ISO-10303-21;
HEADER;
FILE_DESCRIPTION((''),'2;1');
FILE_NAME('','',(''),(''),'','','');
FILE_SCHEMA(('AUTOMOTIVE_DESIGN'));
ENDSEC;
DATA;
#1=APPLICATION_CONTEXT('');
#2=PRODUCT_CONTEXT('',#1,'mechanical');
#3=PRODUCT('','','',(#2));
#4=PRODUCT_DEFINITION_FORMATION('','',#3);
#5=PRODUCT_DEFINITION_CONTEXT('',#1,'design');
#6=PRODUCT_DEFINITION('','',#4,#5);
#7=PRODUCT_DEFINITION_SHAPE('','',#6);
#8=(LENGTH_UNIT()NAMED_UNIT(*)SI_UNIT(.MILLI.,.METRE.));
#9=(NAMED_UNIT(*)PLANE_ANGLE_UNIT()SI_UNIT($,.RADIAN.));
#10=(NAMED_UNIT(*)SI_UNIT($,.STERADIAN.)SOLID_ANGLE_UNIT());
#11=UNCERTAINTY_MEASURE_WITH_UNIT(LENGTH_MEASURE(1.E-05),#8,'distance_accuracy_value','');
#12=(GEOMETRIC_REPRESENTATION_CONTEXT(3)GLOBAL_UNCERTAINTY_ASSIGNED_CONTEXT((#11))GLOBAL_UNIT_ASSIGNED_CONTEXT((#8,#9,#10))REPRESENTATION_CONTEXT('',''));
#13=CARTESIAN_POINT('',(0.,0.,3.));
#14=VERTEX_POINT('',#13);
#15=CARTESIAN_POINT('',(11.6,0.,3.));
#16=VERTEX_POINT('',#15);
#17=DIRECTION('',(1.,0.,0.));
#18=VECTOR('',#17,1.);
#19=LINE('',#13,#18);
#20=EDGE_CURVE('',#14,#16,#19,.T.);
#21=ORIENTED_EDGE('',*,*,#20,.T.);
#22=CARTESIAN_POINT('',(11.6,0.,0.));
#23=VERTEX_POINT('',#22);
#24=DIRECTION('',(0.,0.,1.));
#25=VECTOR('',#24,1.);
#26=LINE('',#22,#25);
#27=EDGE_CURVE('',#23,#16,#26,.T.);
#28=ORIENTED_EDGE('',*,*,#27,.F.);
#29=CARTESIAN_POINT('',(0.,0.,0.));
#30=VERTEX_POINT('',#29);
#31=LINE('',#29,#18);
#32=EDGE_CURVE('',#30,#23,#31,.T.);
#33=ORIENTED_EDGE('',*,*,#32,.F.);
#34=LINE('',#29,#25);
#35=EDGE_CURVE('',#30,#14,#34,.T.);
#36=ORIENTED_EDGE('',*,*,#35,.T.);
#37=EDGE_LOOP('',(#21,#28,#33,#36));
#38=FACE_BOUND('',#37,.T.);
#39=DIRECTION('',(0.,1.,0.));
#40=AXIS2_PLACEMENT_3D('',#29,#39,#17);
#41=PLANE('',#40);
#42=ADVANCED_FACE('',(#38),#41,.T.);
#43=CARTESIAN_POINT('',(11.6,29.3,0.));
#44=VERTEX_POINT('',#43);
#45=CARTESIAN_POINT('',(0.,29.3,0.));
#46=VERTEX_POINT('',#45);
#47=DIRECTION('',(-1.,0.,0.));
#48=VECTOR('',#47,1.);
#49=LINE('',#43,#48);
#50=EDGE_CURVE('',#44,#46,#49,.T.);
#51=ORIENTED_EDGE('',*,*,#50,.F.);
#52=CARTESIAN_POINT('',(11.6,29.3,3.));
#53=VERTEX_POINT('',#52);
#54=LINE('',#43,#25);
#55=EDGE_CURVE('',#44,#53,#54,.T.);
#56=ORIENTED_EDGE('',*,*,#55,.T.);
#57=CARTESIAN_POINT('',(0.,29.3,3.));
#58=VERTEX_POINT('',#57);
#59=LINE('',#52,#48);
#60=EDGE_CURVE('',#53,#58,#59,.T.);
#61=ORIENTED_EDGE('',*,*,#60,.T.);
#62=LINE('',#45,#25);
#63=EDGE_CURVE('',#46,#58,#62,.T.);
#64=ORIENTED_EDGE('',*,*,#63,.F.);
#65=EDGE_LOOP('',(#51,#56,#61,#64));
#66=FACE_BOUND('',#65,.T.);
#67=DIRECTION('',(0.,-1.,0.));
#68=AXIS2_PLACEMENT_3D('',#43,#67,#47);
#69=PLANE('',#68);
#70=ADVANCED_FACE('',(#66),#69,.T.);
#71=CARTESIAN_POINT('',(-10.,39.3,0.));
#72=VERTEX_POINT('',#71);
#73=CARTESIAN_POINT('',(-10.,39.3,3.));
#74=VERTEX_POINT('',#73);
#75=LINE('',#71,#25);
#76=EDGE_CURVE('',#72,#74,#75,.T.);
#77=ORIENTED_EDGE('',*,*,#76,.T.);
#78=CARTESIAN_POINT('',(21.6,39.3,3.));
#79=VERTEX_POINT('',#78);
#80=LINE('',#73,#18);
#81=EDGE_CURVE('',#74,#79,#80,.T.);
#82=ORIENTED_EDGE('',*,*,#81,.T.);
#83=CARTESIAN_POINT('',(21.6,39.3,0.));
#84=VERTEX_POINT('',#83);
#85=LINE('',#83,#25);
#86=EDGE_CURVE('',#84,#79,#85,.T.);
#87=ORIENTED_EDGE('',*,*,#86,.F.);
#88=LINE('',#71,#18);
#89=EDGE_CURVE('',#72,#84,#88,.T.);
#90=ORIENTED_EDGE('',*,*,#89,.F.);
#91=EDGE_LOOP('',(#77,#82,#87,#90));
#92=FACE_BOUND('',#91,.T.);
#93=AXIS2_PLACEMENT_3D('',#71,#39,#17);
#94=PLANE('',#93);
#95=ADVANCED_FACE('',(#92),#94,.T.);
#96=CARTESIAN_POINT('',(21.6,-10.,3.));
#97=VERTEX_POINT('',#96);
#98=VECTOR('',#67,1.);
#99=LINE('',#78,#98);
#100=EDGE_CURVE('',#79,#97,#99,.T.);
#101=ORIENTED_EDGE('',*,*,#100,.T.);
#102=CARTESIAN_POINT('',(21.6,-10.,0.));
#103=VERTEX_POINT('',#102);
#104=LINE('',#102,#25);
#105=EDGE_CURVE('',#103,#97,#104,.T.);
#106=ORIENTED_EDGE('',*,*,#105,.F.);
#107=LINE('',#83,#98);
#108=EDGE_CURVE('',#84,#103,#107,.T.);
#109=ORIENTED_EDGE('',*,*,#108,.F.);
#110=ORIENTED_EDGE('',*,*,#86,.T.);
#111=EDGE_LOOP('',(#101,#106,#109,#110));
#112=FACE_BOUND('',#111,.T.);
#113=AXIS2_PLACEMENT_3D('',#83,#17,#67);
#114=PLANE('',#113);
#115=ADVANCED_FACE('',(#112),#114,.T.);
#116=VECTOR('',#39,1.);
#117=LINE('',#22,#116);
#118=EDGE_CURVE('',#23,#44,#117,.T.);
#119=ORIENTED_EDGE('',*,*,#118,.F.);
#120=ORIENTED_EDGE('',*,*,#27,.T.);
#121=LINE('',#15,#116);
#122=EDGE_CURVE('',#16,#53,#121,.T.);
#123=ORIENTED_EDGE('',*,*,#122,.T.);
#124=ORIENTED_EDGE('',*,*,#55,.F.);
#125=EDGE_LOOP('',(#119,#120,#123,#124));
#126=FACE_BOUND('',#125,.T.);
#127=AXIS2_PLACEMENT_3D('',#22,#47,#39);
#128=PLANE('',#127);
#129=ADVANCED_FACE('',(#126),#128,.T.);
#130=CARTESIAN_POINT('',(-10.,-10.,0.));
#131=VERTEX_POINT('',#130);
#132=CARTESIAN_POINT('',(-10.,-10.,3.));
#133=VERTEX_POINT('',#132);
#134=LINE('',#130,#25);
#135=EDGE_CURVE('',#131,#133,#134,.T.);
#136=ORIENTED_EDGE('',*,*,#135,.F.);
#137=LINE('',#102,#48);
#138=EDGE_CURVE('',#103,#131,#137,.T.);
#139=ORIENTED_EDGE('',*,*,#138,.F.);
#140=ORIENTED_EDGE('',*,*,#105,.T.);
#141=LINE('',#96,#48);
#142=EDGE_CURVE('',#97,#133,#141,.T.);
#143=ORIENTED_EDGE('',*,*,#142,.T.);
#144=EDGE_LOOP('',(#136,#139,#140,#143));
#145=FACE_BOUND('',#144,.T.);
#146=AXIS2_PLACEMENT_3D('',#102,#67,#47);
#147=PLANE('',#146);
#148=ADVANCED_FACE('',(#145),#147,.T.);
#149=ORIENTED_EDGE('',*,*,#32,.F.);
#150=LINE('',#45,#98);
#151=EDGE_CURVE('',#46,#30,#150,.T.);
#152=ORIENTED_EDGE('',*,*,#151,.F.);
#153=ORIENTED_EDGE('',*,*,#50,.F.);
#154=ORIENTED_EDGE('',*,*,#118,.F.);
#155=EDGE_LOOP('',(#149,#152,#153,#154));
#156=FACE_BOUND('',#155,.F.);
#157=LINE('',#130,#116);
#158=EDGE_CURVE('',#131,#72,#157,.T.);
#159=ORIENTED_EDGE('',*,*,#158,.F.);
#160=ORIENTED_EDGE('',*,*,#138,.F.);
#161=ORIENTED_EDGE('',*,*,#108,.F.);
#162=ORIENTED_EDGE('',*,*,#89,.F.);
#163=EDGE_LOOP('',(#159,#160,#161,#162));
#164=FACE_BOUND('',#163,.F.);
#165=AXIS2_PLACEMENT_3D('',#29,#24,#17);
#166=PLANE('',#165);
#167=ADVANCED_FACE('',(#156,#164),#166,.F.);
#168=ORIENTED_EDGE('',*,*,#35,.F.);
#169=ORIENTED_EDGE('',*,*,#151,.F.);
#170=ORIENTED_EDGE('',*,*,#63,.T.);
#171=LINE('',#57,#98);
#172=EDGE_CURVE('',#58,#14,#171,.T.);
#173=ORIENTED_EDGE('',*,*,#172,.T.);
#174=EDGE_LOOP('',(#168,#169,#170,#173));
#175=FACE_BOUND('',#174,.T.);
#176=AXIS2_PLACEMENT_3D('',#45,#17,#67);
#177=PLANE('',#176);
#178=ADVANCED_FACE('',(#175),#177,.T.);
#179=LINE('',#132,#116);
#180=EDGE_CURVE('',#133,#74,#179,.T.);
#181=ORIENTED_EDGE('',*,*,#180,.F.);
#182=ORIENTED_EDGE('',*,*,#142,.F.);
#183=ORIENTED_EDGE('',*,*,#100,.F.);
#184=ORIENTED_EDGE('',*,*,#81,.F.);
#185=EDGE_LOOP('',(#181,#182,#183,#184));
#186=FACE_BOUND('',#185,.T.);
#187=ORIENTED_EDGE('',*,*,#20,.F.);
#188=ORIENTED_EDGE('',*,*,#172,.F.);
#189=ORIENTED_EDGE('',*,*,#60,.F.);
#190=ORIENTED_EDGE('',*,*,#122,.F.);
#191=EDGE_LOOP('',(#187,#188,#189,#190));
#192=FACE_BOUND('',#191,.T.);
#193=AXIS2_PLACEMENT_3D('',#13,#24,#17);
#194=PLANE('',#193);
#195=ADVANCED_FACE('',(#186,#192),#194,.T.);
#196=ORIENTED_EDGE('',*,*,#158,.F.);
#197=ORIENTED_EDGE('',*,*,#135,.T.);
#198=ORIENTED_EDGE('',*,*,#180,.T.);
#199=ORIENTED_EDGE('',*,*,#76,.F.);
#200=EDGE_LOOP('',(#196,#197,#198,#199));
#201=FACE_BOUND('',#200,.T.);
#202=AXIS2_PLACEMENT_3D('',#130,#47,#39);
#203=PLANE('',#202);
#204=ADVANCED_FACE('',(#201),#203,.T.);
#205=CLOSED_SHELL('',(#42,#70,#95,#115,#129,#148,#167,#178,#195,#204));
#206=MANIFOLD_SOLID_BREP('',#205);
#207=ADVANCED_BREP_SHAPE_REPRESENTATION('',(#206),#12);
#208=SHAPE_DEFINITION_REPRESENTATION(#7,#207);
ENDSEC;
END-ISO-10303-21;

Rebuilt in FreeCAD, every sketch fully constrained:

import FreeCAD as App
import Part
import Sketcher
Q = App.Units.Quantity


def add_polygon(sketch, points):
    """Adds a closed chain of lines whose ends are joined by coincident constraints."""
    first, n = sketch.GeometryCount, len(points)
    for a, b in zip(points, points[1:] + points[:1]):
        sketch.addGeometry(Part.LineSegment(App.Vector(*a, 0), App.Vector(*b, 0)), False)
    for i in range(n):
        sketch.addConstraint(Sketcher.Constraint("Coincident", first + i, 2, first + (i + 1) % n, 1))

doc = App.newDocument("Part")
body = doc.addObject("PartDesign::Body", "Body")

# Sketch on XY plane
sketch1 = body.newObject("Sketcher::SketchObject", "Sketch")
sketch1.AttachmentSupport = (doc.getObject("XY_Plane"), [""])
sketch1.MapMode = "FlatFace"
add_polygon(sketch1, [(22, 39), (-10, 39), (-10, -10), (22, -10)])  # lines 0-3
add_polygon(sketch1, [(12, 0), (0, 0), (0, 29), (12, 29)])  # lines 4-7
sketch1.addConstraint([
    Sketcher.Constraint("Horizontal", 0),
    Sketcher.Constraint("Vertical", 1),
    Sketcher.Constraint("Horizontal", 2),
    Sketcher.Constraint("Vertical", 3),
    Sketcher.Constraint("Horizontal", 4),
    Sketcher.Constraint("Vertical", 5),
    Sketcher.Constraint("Horizontal", 6),
    Sketcher.Constraint("Vertical", 7),
    Sketcher.Constraint("Coincident", 4, 2, -1, 1),
    Sketcher.Constraint("DistanceX", 4, 2, 4, 1, Q("11.6 mm")),
    Sketcher.Constraint("DistanceY", 5, 1, 5, 2, Q("29.3 mm")),
    Sketcher.Constraint("DistanceX", 0, 2, -1, 1, Q("10 mm")),
    Sketcher.Constraint("DistanceY", 1, 2, -1, 1, Q("10 mm")),
    Sketcher.Constraint("DistanceY", 5, 2, 0, 2, Q("10 mm")),
    Sketcher.Constraint("DistanceX", 6, 2, 3, 2, Q("10 mm")),
])
pad1 = body.newObject("PartDesign::Pad", "Pad")
pad1.Profile = sketch1
pad1.Length = 3

doc.recompute()
